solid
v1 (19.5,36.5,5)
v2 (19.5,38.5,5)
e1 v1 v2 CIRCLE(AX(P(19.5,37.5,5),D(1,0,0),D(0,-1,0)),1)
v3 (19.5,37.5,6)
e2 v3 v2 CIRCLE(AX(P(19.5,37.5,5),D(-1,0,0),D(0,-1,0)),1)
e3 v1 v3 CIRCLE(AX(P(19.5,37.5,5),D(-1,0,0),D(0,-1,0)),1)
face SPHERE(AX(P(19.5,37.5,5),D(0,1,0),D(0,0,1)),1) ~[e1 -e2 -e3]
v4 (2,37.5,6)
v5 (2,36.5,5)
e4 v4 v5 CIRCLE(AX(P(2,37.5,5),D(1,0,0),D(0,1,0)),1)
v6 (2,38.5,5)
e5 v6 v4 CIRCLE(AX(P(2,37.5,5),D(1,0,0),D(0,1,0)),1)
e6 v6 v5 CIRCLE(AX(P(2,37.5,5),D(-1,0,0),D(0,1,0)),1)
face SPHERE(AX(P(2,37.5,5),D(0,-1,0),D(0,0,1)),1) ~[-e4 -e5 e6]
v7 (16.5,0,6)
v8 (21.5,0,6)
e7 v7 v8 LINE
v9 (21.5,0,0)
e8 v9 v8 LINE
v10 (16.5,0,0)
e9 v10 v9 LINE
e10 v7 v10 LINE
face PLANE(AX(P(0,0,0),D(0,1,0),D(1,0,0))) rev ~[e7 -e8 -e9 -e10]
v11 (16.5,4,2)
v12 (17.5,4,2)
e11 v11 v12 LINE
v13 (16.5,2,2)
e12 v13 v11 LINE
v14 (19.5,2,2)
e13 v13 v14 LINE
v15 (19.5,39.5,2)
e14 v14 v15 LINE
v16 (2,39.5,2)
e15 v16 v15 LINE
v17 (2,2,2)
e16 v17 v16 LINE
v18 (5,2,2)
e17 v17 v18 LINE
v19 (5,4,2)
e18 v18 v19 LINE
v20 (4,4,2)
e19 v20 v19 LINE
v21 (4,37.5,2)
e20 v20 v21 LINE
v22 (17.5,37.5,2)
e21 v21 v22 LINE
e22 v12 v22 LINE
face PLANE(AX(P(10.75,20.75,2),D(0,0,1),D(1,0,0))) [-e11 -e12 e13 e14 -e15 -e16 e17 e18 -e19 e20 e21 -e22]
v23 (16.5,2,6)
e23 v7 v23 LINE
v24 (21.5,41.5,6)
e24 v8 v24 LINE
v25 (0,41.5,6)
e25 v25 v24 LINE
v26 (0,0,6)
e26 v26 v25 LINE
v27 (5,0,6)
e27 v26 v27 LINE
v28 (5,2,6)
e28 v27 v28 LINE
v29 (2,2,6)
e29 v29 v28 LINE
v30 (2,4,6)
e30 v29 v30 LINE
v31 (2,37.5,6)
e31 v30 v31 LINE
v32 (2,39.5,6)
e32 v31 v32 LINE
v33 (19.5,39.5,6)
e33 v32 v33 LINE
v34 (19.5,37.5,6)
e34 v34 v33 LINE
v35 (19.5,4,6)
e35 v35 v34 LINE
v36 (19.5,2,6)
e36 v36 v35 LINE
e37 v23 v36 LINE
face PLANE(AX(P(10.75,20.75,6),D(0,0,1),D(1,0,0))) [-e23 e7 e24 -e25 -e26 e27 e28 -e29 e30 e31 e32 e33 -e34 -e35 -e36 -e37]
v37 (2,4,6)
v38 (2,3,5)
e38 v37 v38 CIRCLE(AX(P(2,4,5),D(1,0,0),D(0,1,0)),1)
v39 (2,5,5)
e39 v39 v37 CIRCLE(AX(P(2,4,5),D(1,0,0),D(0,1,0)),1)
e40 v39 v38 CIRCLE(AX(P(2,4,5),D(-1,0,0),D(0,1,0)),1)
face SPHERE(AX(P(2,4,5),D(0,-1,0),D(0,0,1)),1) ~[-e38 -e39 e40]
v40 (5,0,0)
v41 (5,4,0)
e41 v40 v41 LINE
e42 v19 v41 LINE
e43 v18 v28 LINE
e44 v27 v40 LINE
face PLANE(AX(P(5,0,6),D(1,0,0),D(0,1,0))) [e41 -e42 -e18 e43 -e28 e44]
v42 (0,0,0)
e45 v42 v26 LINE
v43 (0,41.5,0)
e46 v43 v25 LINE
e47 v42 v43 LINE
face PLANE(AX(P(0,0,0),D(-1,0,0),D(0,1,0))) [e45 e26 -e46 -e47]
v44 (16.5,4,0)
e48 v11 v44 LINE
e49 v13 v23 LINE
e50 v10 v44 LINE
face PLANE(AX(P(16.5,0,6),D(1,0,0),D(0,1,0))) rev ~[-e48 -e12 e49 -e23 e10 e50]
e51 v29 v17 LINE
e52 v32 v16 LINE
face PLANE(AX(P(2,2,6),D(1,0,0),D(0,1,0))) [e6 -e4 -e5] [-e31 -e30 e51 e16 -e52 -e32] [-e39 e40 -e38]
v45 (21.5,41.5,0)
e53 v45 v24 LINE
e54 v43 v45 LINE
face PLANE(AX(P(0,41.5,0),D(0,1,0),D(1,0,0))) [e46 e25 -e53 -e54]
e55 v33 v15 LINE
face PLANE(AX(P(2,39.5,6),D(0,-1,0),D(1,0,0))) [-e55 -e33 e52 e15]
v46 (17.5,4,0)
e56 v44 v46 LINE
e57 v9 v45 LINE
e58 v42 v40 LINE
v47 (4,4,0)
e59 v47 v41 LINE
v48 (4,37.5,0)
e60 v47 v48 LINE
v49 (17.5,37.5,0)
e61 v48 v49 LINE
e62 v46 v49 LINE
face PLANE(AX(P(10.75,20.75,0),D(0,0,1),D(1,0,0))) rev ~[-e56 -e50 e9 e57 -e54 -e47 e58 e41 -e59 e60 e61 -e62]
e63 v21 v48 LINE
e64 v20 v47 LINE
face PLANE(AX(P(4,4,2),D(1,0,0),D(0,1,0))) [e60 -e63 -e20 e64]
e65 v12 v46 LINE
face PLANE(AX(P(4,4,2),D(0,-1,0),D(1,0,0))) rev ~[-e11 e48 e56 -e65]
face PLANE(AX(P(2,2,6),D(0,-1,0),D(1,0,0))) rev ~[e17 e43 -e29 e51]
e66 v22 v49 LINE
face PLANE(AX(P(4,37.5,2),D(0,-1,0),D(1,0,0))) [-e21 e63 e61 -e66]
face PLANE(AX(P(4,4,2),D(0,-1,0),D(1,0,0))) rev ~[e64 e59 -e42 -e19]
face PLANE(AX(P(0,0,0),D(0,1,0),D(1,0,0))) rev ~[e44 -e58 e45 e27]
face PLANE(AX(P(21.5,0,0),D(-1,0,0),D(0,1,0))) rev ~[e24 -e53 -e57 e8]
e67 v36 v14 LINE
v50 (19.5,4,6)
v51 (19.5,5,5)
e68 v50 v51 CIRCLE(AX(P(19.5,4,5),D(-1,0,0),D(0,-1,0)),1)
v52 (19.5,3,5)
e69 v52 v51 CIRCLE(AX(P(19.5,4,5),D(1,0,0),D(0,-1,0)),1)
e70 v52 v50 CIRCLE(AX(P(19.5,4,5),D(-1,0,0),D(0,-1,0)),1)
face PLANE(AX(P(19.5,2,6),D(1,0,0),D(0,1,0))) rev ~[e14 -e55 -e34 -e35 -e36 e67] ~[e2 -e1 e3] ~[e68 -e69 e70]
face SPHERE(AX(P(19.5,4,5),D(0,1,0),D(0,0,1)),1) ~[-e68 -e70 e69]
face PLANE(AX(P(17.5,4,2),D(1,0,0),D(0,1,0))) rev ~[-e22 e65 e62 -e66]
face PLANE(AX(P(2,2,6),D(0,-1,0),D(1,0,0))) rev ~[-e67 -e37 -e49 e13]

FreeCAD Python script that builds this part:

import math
import FreeCAD as App
import Part
import Sketcher

V = App.Vector


def add_polygon(sketch, points):
    """Adds a closed chain of lines whose ends are joined by coincident constraints."""
    first, n = sketch.GeometryCount, len(points)
    for a, b in zip(points, points[1:] + points[:1]):
        sketch.addGeometry(Part.LineSegment(App.Vector(*a, 0), App.Vector(*b, 0)), False)
    for i in range(n):
        sketch.addConstraint(Sketcher.Constraint("Coincident", first + i, 2, first + (i + 1) % n, 1))

doc = App.newDocument("Part")
body = doc.addObject("PartDesign::Body", "Body")

# Sketch on XY plane
sketch1 = body.newObject("Sketcher::SketchObject", "Sketch")
sketch1.AttachmentSupport = (doc.getObject("XY_Plane"), [""])
sketch1.MapMode = "FlatFace"
add_polygon(sketch1, [(0, 41.5), (0, 0), (21.5, 0), (21.5, 41.5)])  # lines 0-3
sketch1.addConstraint([
    Sketcher.Constraint("Vertical", 0),
    Sketcher.Constraint("Horizontal", 1),
    Sketcher.Constraint("Vertical", 2),
    Sketcher.Constraint("Horizontal", 3),
    Sketcher.Constraint("Coincident", 0, 2, -1, 1),
    Sketcher.Constraint("DistanceX", 1, 1, 1, 2, 21.5),
    Sketcher.Constraint("DistanceY", 0, 2, 0, 1, 41.5),
])
pad1 = body.newObject("PartDesign::Pad", "Pad")
pad1.Profile = sketch1
pad1.Length = 6

# Sketch on XY plane
sketch2 = body.newObject("Sketcher::SketchObject", "Sketch001")
sketch2.AttachmentSupport = (doc.getObject("XY_Plane"), [""])
sketch2.MapMode = "FlatFace"
sketch2.AttachmentOffset = App.Placement(V(0, 0, 6), App.Rotation())
add_polygon(sketch2, [(2, 39.5), (2, 2), (19.5, 2), (19.5, 39.5)])  # lines 0-3
sketch2.addConstraint([
    Sketcher.Constraint("Vertical", 0),
    Sketcher.Constraint("Horizontal", 1),
    Sketcher.Constraint("Vertical", 2),
    Sketcher.Constraint("Horizontal", 3),
    Sketcher.Constraint("DistanceX", 1, 1, 1, 2, 17.5),
    Sketcher.Constraint("DistanceY", 0, 2, 0, 1, 37.5),
    Sketcher.Constraint("DistanceX", -1, 1, 0, 2, 2.0),
    Sketcher.Constraint("DistanceY", -1, 1, 0, 2, 2.0),
])
pocket1 = body.newObject("PartDesign::Pocket", "Pocket")
pocket1.Profile = sketch2
pocket1.Length = 4

# Sketch on XY plane
sketch3 = body.newObject("Sketcher::SketchObject", "Sketch002")
sketch3.AttachmentSupport = (doc.getObject("XY_Plane"), [""])
sketch3.MapMode = "FlatFace"
sketch3.AttachmentOffset = App.Placement(V(0, 0, 2), App.Rotation())
add_polygon(sketch3, [(4, 37.5), (4, 4), (17.5, 4), (17.5, 37.5)])  # lines 0-3
sketch3.addConstraint([
    Sketcher.Constraint("Vertical", 0),
    Sketcher.Constraint("Horizontal", 1),
    Sketcher.Constraint("Vertical", 2),
    Sketcher.Constraint("Horizontal", 3),
    Sketcher.Constraint("DistanceX", 1, 1, 1, 2, 13.5),
    Sketcher.Constraint("DistanceY", 0, 2, 0, 1, 33.5),
    Sketcher.Constraint("DistanceX", -1, 1, 0, 2, 4.0),
    Sketcher.Constraint("DistanceY", -1, 1, 0, 2, 4.0),
])
pocket2 = body.newObject("PartDesign::Pocket", "Pocket001")
pocket2.Profile = sketch3
pocket2.Type = "ThroughAll"

# Sketch on XY plane
sketch4 = body.newObject("Sketcher::SketchObject", "Sketch003")
sketch4.AttachmentSupport = (doc.getObject("XY_Plane"), [""])
sketch4.MapMode = "FlatFace"
sketch4.AttachmentOffset = App.Placement(V(0, 0, 6), App.Rotation())
add_polygon(sketch4, [(5, 4), (5, 0), (16.5, 0), (16.5, 4)])  # lines 0-3
sketch4.addConstraint([
    Sketcher.Constraint("Vertical", 0),
    Sketcher.Constraint("Horizontal", 1),
    Sketcher.Constraint("Vertical", 2),
    Sketcher.Constraint("Horizontal", 3),
    Sketcher.Constraint("PointOnObject", 0, 2, -1),
    Sketcher.Constraint("DistanceY", 0, 2, 0, 1, 4.0),
    Sketcher.Constraint("DistanceX", 1, 1, 1, 2, 11.5),
    Sketcher.Constraint("DistanceX", -1, 1, 0, 2, 5.0),
])
pocket3 = body.newObject("PartDesign::Pocket", "Pocket002")
pocket3.Profile = sketch4
pocket3.Type = "ThroughAll"

# Sketch on YZ plane
sketch5 = body.newObject("Sketcher::SketchObject", "Sketch004")
sketch5.AttachmentSupport = (doc.getObject("YZ_Plane"), [""])
sketch5.MapMode = "FlatFace"
sketch5.AttachmentOffset = App.Placement(V(0, 0, 2), App.Rotation())
sketch5.addGeometry([
    Part.ArcOfCircle(Part.Circle(V(4, 5, 0), V(0, 0, 1), 1), math.radians(0), math.radians(180)),
    Part.LineSegment(V(3, 5, 0), V(5, 5, 0)),
    Part.ArcOfCircle(Part.Circle(V(37.5, 5, 0), V(0, 0, 1), 1), math.radians(0), math.radians(180)),
    Part.LineSegment(V(36.5, 5, 0), V(38.5, 5, 0)),
], False)
sketch5.addGeometry(Part.LineSegment(V(3, 5, 0), V(38.5, 5, 0)), True)  # axis
sketch5.addConstraint([
    Sketcher.Constraint("Coincident", 0, 1, 1, 2),
    Sketcher.Constraint("Coincident", 1, 1, 0, 2),
    Sketcher.Constraint("Coincident", 2, 1, 3, 2),
    Sketcher.Constraint("Coincident", 3, 1, 2, 2),
    Sketcher.Constraint("Horizontal", 1),
    Sketcher.Constraint("Horizontal", 3),
    Sketcher.Constraint("Horizontal", 4),
    Sketcher.Constraint("Coincident", 4, 1, 1, 1),
    Sketcher.Constraint("Coincident", 4, 2, 2, 1),
    Sketcher.Constraint("Equal", 0, 2),
    Sketcher.Constraint("Horizontal", 0, 3, 2, 3),
    Sketcher.Constraint("Horizontal", 2, 3, 0, 1),
    Sketcher.Constraint("Radius", 0, 1.0),
    Sketcher.Constraint("DistanceX", 4, 1, 4, 2, 35.5),
    Sketcher.Constraint("DistanceX", -1, 1, 0, 3, 4.0),
    Sketcher.Constraint("DistanceY", -1, 1, 0, 3, 5.0),
])
revolution = body.newObject("PartDesign::Revolution", "Revolution")
revolution.Profile = sketch5
revolution.ReferenceAxis = (sketch5, ["Axis0"])
revolution.Angle = 180

# Sketch on YZ plane
sketch6 = body.newObject("Sketcher::SketchObject", "Sketch005")
sketch6.AttachmentSupport = (doc.getObject("YZ_Plane"), [""])
sketch6.MapMode = "FlatFace"
sketch6.AttachmentOffset = App.Placement(V(0, 0, 19.5), App.Rotation())
sketch6.addGeometry([
    Part.ArcOfCircle(Part.Circle(V(37.5, 5, 0), V(0, 0, 1), 1), math.radians(0), math.radians(180)),
    Part.LineSegment(V(38.5, 5, 0), V(36.5, 5, 0)),
    Part.ArcOfCircle(Part.Circle(V(4, 5, 0), V(0, 0, 1), 1), math.radians(0), math.radians(180)),
    Part.LineSegment(V(5, 5, 0), V(3, 5, 0)),
], False)
sketch6.addGeometry(Part.LineSegment(V(38.5, 5, 0), V(3, 5, 0)), True)  # axis
sketch6.addConstraint([
    Sketcher.Constraint("Coincident", 0, 1, 1, 1),
    Sketcher.Constraint("Coincident", 1, 2, 0, 2),
    Sketcher.Constraint("Coincident", 2, 1, 3, 1),
    Sketcher.Constraint("Coincident", 3, 2, 2, 2),
    Sketcher.Constraint("Horizontal", 1),
    Sketcher.Constraint("Horizontal", 3),
    Sketcher.Constraint("Horizontal", 4),
    Sketcher.Constraint("Coincident", 4, 1, 0, 1),
    Sketcher.Constraint("Coincident", 4, 2, 3, 2),
    Sketcher.Constraint("Equal", 0, 2),
    Sketcher.Constraint("Horizontal", 0, 3, 2, 3),
    Sketcher.Constraint("Horizontal", 2, 3, 0, 1),
    Sketcher.Constraint("Radius", 0, 1.0),
    Sketcher.Constraint("DistanceX", 4, 2, 4, 1, 35.5),
    Sketcher.Constraint("DistanceY", -1, 1, 0, 3, 5.0),
    Sketcher.Constraint("DistanceX", -1, 1, 2, 3, 4.0),
])
revolution2 = body.newObject("PartDesign::Revolution", "Revolution001")
revolution2.Profile = sketch6
revolution2.ReferenceAxis = (sketch6, ["Axis0"])
revolution2.Angle = 180

doc.recompute()
